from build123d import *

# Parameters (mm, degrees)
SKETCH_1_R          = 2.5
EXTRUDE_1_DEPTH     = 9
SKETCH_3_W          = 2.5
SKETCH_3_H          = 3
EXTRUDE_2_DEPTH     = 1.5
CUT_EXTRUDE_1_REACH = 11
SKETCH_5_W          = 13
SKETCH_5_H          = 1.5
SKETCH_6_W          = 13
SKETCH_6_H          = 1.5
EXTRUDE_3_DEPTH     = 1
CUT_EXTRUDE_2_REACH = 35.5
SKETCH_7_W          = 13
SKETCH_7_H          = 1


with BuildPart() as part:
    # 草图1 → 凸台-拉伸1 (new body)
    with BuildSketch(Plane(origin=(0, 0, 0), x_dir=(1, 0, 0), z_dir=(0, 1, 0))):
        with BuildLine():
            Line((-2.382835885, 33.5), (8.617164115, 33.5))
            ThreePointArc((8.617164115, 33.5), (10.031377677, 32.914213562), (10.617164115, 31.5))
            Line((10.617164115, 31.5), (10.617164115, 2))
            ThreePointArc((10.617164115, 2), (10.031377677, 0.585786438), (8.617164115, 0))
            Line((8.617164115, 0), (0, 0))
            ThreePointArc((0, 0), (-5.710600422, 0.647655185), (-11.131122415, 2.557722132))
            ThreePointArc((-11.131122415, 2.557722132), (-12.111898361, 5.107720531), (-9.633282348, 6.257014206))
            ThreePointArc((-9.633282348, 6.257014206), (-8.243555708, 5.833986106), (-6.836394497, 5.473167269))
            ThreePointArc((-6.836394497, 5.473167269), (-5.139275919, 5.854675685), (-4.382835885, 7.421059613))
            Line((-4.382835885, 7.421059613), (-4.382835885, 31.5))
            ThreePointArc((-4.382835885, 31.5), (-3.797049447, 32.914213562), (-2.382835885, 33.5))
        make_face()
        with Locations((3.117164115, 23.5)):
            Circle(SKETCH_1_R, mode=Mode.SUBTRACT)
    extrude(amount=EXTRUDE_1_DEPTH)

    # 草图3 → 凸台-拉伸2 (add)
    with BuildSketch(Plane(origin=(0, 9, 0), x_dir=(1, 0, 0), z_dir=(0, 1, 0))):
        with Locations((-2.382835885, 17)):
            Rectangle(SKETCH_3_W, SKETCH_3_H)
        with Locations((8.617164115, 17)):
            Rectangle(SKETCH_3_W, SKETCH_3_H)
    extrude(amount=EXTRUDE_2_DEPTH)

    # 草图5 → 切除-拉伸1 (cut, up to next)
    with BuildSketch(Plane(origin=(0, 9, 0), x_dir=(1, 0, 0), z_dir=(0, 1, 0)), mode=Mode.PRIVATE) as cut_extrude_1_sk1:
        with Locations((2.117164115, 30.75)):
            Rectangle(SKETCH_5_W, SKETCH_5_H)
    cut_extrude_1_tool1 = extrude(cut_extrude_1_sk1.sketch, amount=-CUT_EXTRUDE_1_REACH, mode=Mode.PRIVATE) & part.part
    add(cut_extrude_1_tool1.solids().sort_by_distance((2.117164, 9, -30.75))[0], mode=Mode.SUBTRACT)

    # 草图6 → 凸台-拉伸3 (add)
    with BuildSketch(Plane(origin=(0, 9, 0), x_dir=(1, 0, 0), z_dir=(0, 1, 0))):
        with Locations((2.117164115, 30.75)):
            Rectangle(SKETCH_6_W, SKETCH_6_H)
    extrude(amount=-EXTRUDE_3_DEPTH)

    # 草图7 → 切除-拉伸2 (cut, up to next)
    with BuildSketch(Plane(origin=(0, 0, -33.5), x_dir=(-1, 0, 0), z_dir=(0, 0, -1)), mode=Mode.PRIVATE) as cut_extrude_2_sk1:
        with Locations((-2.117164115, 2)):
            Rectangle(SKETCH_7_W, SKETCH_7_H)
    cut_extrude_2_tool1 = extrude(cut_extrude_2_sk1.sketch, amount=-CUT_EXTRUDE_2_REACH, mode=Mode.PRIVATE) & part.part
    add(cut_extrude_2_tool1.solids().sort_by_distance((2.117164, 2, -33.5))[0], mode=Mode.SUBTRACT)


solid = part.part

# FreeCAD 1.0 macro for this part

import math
import FreeCAD as App
import Part
import Sketcher
Q = App.Units.Quantity

doc = App.newDocument("Part")
body = doc.addObject("PartDesign::Body", "Body")

sketch1 = body.newObject("Sketcher::SketchObject", "Sketch")
sketch1.AttachmentSupport = (doc.getObject("XZ_Plane"), [""])
sketch1.MapMode = "FlatFace"
sketch1.addGeometry([
    Part.LineSegment(App.Vector(8.617164, -33.5, 0), App.Vector(-2.382836, -33.5, 0)),
    Part.ArcOfCircle(Part.Circle(App.Vector(-2.382836, -31.5, 0), App.Vector(0, 0, 1), 2), math.radians(-180), math.radians(-90)),
    Part.LineSegment(App.Vector(-4.382836, -31.5, 0), App.Vector(-4.382836, -7.42106, 0)),
    Part.ArcOfCircle(Part.Circle(App.Vector(-6.382836, -7.42106, 0), App.Vector(0, 0, 1), 2), math.radians(0), math.radians(103.10753)),
    Part.ArcOfCircle(Part.Circle(App.Vector(0.571115, -37.286101, 0), App.Vector(0, 0, 1), 32.663955), math.radians(103.10753), math.radians(108.204253)),
    Part.ArcOfCircle(Part.Circle(App.Vector(-10.258093, -4.357116, 0), App.Vector(0, 0, 1), 2), math.radians(115.88171), math.radians(288.204253)),
    Part.ArcOfCircle(Part.Circle(App.Vector(0, -25.5, 0), App.Vector(0, 0, 1), 25.5), math.radians(90), math.radians(115.88171)),
    Part.LineSegment(App.Vector(0, 0, 0), App.Vector(8.617164, 0, 0)),
    Part.ArcOfCircle(Part.Circle(App.Vector(8.617164, -2, 0), App.Vector(0, 0, 1), 2), math.radians(0), math.radians(90)),
    Part.LineSegment(App.Vector(10.617164, -2, 0), App.Vector(10.617164, -31.5, 0)),
    Part.ArcOfCircle(Part.Circle(App.Vector(8.617164, -31.5, 0), App.Vector(0, 0, 1), 2), math.radians(-90), math.radians(0)),
    Part.Circle(App.Vector(3.117164, -23.5, 0), App.Vector(0, 0, 1), 2.5),
], False)
sketch1.addConstraint([
    Sketcher.Constraint("Tangent", 0, 2, 1, 2),
    Sketcher.Constraint("Tangent", 1, 1, 2, 1),
    Sketcher.Constraint("Tangent", 2, 2, 3, 1),
    Sketcher.Constraint("Tangent", 3, 2, 4, 1),
    Sketcher.Constraint("Tangent", 4, 2, 5, 2),
    Sketcher.Constraint("Tangent", 5, 1, 6, 2),
    Sketcher.Constraint("Tangent", 6, 1, 7, 1),
    Sketcher.Constraint("Tangent", 7, 2, 8, 2),
    Sketcher.Constraint("Tangent", 8, 1, 9, 1),
    Sketcher.Constraint("Tangent", 9, 2, 10, 2),
    Sketcher.Constraint("Tangent", 10, 1, 0, 1),
    Sketcher.Constraint("Horizontal", 0),
    Sketcher.Constraint("Vertical", 2),
    Sketcher.Constraint("Horizontal", 7),
    Sketcher.Constraint("Vertical", 9),
    Sketcher.Constraint("Coincident", 6, 1, -1, 1),
    Sketcher.Constraint("Equal", 1, 3),
    Sketcher.Constraint("Equal", 3, 5),
    Sketcher.Constraint("Equal", 5, 8),
    Sketcher.Constraint("Equal", 8, 10),
    Sketcher.Constraint("Diameter", 11, Q("5 mm")),
    Sketcher.Constraint("Radius", 1, Q("2 mm")),
    Sketcher.Constraint("Radius", 6, Q("25.5 mm")),
    Sketcher.Constraint("DistanceX", 0, 2, 0, 1, Q("11 mm")),
    Sketcher.Constraint("DistanceY", 9, 2, 9, 1, Q("29.5 mm")),
    Sketcher.Constraint("DistanceY", 6, 3, 11, 3, Q("2 mm")),
    Sketcher.Constraint("DistanceX", 1, 3, 11, 3, Q("5.5 mm")),
    Sketcher.Constraint("Radius", 4, Q("32.663955 mm")),
    Sketcher.Constraint("DistanceY", 2, 1, 2, 2, Q("24.07894 mm")),
    Sketcher.Constraint("DistanceY", 4, 3, -1, 1, Q("37.286101 mm")),
    Sketcher.Constraint("DistanceX", 5, 3, 3, 2, Q("3.421699 mm")),
])
pad1 = body.newObject("PartDesign::Pad", "Pad")
pad1.Profile = sketch1
pad1.Length = 9
pad1.Reversed = True

sketch2 = body.newObject("Sketcher::SketchObject", "Sketch001")
sketch2.AttachmentSupport = (doc.getObject("XZ_Plane"), [""])
sketch2.MapMode = "FlatFace"
sketch2.AttachmentOffset = App.Placement(App.Vector(0, 0, -9), App.Rotation())
sketch2.addGeometry([
    Part.LineSegment(App.Vector(-3.632836, -18.5, 0), App.Vector(-3.632836, -15.5, 0)),
    Part.LineSegment(App.Vector(-3.632836, -15.5, 0), App.Vector(-1.132836, -15.5, 0)),
    Part.LineSegment(App.Vector(-1.132836, -15.5, 0), App.Vector(-1.132836, -18.5, 0)),
    Part.LineSegment(App.Vector(-1.132836, -18.5, 0), App.Vector(-3.632836, -18.5, 0)),
    Part.LineSegment(App.Vector(7.367164, -18.5, 0), App.Vector(7.367164, -15.5, 0)),
    Part.LineSegment(App.Vector(7.367164, -15.5, 0), App.Vector(9.867164, -15.5, 0)),
    Part.LineSegment(App.Vector(9.867164, -15.5, 0), App.Vector(9.867164, -18.5, 0)),
    Part.LineSegment(App.Vector(9.867164, -18.5, 0), App.Vector(7.367164, -18.5, 0)),
], False)
sketch2.addConstraint([
    Sketcher.Constraint("Coincident", 0, 2, 1, 1),
    Sketcher.Constraint("Coincident", 1, 2, 2, 1),
    Sketcher.Constraint("Coincident", 2, 2, 3, 1),
    Sketcher.Constraint("Coincident", 3, 2, 0, 1),
    Sketcher.Constraint("Coincident", 4, 2, 5, 1),
    Sketcher.Constraint("Coincident", 5, 2, 6, 1),
    Sketcher.Constraint("Coincident", 6, 2, 7, 1),
    Sketcher.Constraint("Coincident", 7, 2, 4, 1),
    Sketcher.Constraint("Vertical", 0),
    Sketcher.Constraint("Horizontal", 1),
    Sketcher.Constraint("Vertical", 2),
    Sketcher.Constraint("Horizontal", 3),
    Sketcher.Constraint("Vertical", 4),
    Sketcher.Constraint("Horizontal", 5),
    Sketcher.Constraint("Vertical", 6),
    Sketcher.Constraint("Horizontal", 7),
    Sketcher.Constraint("Horizontal", 1, 2, 4, 2),
    Sketcher.Constraint("Horizontal", 3, 2, 6, 2),
    Sketcher.Constraint("Equal", 3, 5),
    Sketcher.Constraint("DistanceY", 0, 1, 0, 2, Q("3 mm")),
    Sketcher.Constraint("DistanceX", 1, 1, 1, 2, Q("2.5 mm")),
    Sketcher.Constraint("DistanceX", 0, 2, 4, 2, Q("11 mm")),
    Sketcher.Constraint("DistanceY", 0, 2, -1, 1, Q("15.5 mm")),
    Sketcher.Constraint("DistanceX", 0, 2, -1, 1, Q("3.632836 mm")),
])
pad2 = body.newObject("PartDesign::Pad", "Pad001")
pad2.Profile = sketch2
pad2.Length = 1.5
pad2.Reversed = True

sketch3 = body.newObject("Sketcher::SketchObject", "Sketch002")
sketch3.AttachmentSupport = (doc.getObject("XZ_Plane"), [""])
sketch3.MapMode = "FlatFace"
sketch3.AttachmentOffset = App.Placement(App.Vector(0, 0, -9), App.Rotation())
sketch3.addGeometry([
    Part.LineSegment(App.Vector(-4.382836, -31.5, 0), App.Vector(-4.382836, -30, 0)),
    Part.LineSegment(App.Vector(-4.382836, -30, 0), App.Vector(8.617164, -30, 0)),
    Part.LineSegment(App.Vector(8.617164, -30, 0), App.Vector(8.617164, -31.5, 0)),
    Part.LineSegment(App.Vector(8.617164, -31.5, 0), App.Vector(-4.382836, -31.5, 0)),
], False)
sketch3.addConstraint([
    Sketcher.Constraint("Coincident", 0, 2, 1, 1),
    Sketcher.Constraint("Coincident", 1, 2, 2, 1),
    Sketcher.Constraint("Coincident", 2, 2, 3, 1),
    Sketcher.Constraint("Coincident", 3, 2, 0, 1),
    Sketcher.Constraint("Vertical", 0),
    Sketcher.Constraint("Horizontal", 1),
    Sketcher.Constraint("Vertical", 2),
    Sketcher.Constraint("Horizontal", 3),
    Sketcher.Constraint("DistanceX", 1, 1, 1, 2, Q("13 mm")),
    Sketcher.Constraint("DistanceY", 0, 1, 0, 2, Q("1.5 mm")),
    Sketcher.Constraint("DistanceY", 0, 2, -1, 1, Q("30 mm")),
    Sketcher.Constraint("DistanceX", 0, 2, -1, 1, Q("4.382836 mm")),
])
pocket1 = body.newObject("PartDesign::Pocket", "Pocket")
pocket1.Profile = sketch3
pocket1.Type = "UpToFirst"
pocket1.Reversed = True

sketch4 = body.newObject("Sketcher::SketchObject", "Sketch003")
sketch4.AttachmentSupport = (doc.getObject("XZ_Plane"), [""])
sketch4.MapMode = "FlatFace"
sketch4.AttachmentOffset = App.Placement(App.Vector(0, 0, -9), App.Rotation())
sketch4.addGeometry([
    Part.LineSegment(App.Vector(-4.382836, -31.5, 0), App.Vector(-4.382836, -30, 0)),
    Part.LineSegment(App.Vector(-4.382836, -30, 0), App.Vector(8.617164, -30, 0)),
    Part.LineSegment(App.Vector(8.617164, -30, 0), App.Vector(8.617164, -31.5, 0)),
    Part.LineSegment(App.Vector(8.617164, -31.5, 0), App.Vector(-4.382836, -31.5, 0)),
], False)
sketch4.addConstraint([
    Sketcher.Constraint("Coincident", 0, 2, 1, 1),
    Sketcher.Constraint("Coincident", 1, 2, 2, 1),
    Sketcher.Constraint("Coincident", 2, 2, 3, 1),
    Sketcher.Constraint("Coincident", 3, 2, 0, 1),
    Sketcher.Constraint("Vertical", 0),
    Sketcher.Constraint("Horizontal", 1),
    Sketcher.Constraint("Vertical", 2),
    Sketcher.Constraint("Horizontal", 3),
    Sketcher.Constraint("DistanceX", 1, 1, 1, 2, Q("13 mm")),
    Sketcher.Constraint("DistanceY", 0, 1, 0, 2, Q("1.5 mm")),
    Sketcher.Constraint("DistanceY", 0, 2, -1, 1, Q("30 mm")),
    Sketcher.Constraint("DistanceX", 0, 2, -1, 1, Q("4.382836 mm")),
])
pad3 = body.newObject("PartDesign::Pad", "Pad002")
pad3.Profile = sketch4
pad3.Length = 1

sketch5 = body.newObject("Sketcher::SketchObject", "Sketch004")
sketch5.AttachmentSupport = (doc.getObject("XY_Plane"), [""])
sketch5.MapMode = "FlatFace"
sketch5.AttachmentOffset = App.Placement(App.Vector(0, 0, -33.5), App.Rotation())
sketch5.addGeometry([
    Part.LineSegment(App.Vector(8.617164, 2.5, 0), App.Vector(8.617164, 1.5, 0)),
    Part.LineSegment(App.Vector(8.617164, 1.5, 0), App.Vector(-4.382836, 1.5, 0)),
    Part.LineSegment(App.Vector(-4.382836, 1.5, 0), App.Vector(-4.382836, 2.5, 0)),
    Part.LineSegment(App.Vector(-4.382836, 2.5, 0), App.Vector(8.617164, 2.5, 0)),
], False)
sketch5.addConstraint([
    Sketcher.Constraint("Coincident", 0, 2, 1, 1),
    Sketcher.Constraint("Coincident", 1, 2, 2, 1),
    Sketcher.Constraint("Coincident", 2, 2, 3, 1),
    Sketcher.Constraint("Coincident", 3, 2, 0, 1),
    Sketcher.Constraint("Vertical", 0),
    Sketcher.Constraint("Horizontal", 1),
    Sketcher.Constraint("Vertical", 2),
    Sketcher.Constraint("Horizontal", 3),
    Sketcher.Constraint("DistanceX", 1, 2, 1, 1, Q("13 mm")),
    Sketcher.Constraint("DistanceY", 0, 2, 0, 1, Q("1 mm")),
    Sketcher.Constraint("DistanceY", -1, 1, 0, 2, Q("1.5 mm")),
    Sketcher.Constraint("DistanceX", -1, 1, 0, 2, Q("8.617164 mm")),
])
pocket2 = body.newObject("PartDesign::Pocket", "Pocket001")
pocket2.Profile = sketch5
pocket2.Type = "UpToFirst"
pocket2.Reversed = True

doc.recompute()
